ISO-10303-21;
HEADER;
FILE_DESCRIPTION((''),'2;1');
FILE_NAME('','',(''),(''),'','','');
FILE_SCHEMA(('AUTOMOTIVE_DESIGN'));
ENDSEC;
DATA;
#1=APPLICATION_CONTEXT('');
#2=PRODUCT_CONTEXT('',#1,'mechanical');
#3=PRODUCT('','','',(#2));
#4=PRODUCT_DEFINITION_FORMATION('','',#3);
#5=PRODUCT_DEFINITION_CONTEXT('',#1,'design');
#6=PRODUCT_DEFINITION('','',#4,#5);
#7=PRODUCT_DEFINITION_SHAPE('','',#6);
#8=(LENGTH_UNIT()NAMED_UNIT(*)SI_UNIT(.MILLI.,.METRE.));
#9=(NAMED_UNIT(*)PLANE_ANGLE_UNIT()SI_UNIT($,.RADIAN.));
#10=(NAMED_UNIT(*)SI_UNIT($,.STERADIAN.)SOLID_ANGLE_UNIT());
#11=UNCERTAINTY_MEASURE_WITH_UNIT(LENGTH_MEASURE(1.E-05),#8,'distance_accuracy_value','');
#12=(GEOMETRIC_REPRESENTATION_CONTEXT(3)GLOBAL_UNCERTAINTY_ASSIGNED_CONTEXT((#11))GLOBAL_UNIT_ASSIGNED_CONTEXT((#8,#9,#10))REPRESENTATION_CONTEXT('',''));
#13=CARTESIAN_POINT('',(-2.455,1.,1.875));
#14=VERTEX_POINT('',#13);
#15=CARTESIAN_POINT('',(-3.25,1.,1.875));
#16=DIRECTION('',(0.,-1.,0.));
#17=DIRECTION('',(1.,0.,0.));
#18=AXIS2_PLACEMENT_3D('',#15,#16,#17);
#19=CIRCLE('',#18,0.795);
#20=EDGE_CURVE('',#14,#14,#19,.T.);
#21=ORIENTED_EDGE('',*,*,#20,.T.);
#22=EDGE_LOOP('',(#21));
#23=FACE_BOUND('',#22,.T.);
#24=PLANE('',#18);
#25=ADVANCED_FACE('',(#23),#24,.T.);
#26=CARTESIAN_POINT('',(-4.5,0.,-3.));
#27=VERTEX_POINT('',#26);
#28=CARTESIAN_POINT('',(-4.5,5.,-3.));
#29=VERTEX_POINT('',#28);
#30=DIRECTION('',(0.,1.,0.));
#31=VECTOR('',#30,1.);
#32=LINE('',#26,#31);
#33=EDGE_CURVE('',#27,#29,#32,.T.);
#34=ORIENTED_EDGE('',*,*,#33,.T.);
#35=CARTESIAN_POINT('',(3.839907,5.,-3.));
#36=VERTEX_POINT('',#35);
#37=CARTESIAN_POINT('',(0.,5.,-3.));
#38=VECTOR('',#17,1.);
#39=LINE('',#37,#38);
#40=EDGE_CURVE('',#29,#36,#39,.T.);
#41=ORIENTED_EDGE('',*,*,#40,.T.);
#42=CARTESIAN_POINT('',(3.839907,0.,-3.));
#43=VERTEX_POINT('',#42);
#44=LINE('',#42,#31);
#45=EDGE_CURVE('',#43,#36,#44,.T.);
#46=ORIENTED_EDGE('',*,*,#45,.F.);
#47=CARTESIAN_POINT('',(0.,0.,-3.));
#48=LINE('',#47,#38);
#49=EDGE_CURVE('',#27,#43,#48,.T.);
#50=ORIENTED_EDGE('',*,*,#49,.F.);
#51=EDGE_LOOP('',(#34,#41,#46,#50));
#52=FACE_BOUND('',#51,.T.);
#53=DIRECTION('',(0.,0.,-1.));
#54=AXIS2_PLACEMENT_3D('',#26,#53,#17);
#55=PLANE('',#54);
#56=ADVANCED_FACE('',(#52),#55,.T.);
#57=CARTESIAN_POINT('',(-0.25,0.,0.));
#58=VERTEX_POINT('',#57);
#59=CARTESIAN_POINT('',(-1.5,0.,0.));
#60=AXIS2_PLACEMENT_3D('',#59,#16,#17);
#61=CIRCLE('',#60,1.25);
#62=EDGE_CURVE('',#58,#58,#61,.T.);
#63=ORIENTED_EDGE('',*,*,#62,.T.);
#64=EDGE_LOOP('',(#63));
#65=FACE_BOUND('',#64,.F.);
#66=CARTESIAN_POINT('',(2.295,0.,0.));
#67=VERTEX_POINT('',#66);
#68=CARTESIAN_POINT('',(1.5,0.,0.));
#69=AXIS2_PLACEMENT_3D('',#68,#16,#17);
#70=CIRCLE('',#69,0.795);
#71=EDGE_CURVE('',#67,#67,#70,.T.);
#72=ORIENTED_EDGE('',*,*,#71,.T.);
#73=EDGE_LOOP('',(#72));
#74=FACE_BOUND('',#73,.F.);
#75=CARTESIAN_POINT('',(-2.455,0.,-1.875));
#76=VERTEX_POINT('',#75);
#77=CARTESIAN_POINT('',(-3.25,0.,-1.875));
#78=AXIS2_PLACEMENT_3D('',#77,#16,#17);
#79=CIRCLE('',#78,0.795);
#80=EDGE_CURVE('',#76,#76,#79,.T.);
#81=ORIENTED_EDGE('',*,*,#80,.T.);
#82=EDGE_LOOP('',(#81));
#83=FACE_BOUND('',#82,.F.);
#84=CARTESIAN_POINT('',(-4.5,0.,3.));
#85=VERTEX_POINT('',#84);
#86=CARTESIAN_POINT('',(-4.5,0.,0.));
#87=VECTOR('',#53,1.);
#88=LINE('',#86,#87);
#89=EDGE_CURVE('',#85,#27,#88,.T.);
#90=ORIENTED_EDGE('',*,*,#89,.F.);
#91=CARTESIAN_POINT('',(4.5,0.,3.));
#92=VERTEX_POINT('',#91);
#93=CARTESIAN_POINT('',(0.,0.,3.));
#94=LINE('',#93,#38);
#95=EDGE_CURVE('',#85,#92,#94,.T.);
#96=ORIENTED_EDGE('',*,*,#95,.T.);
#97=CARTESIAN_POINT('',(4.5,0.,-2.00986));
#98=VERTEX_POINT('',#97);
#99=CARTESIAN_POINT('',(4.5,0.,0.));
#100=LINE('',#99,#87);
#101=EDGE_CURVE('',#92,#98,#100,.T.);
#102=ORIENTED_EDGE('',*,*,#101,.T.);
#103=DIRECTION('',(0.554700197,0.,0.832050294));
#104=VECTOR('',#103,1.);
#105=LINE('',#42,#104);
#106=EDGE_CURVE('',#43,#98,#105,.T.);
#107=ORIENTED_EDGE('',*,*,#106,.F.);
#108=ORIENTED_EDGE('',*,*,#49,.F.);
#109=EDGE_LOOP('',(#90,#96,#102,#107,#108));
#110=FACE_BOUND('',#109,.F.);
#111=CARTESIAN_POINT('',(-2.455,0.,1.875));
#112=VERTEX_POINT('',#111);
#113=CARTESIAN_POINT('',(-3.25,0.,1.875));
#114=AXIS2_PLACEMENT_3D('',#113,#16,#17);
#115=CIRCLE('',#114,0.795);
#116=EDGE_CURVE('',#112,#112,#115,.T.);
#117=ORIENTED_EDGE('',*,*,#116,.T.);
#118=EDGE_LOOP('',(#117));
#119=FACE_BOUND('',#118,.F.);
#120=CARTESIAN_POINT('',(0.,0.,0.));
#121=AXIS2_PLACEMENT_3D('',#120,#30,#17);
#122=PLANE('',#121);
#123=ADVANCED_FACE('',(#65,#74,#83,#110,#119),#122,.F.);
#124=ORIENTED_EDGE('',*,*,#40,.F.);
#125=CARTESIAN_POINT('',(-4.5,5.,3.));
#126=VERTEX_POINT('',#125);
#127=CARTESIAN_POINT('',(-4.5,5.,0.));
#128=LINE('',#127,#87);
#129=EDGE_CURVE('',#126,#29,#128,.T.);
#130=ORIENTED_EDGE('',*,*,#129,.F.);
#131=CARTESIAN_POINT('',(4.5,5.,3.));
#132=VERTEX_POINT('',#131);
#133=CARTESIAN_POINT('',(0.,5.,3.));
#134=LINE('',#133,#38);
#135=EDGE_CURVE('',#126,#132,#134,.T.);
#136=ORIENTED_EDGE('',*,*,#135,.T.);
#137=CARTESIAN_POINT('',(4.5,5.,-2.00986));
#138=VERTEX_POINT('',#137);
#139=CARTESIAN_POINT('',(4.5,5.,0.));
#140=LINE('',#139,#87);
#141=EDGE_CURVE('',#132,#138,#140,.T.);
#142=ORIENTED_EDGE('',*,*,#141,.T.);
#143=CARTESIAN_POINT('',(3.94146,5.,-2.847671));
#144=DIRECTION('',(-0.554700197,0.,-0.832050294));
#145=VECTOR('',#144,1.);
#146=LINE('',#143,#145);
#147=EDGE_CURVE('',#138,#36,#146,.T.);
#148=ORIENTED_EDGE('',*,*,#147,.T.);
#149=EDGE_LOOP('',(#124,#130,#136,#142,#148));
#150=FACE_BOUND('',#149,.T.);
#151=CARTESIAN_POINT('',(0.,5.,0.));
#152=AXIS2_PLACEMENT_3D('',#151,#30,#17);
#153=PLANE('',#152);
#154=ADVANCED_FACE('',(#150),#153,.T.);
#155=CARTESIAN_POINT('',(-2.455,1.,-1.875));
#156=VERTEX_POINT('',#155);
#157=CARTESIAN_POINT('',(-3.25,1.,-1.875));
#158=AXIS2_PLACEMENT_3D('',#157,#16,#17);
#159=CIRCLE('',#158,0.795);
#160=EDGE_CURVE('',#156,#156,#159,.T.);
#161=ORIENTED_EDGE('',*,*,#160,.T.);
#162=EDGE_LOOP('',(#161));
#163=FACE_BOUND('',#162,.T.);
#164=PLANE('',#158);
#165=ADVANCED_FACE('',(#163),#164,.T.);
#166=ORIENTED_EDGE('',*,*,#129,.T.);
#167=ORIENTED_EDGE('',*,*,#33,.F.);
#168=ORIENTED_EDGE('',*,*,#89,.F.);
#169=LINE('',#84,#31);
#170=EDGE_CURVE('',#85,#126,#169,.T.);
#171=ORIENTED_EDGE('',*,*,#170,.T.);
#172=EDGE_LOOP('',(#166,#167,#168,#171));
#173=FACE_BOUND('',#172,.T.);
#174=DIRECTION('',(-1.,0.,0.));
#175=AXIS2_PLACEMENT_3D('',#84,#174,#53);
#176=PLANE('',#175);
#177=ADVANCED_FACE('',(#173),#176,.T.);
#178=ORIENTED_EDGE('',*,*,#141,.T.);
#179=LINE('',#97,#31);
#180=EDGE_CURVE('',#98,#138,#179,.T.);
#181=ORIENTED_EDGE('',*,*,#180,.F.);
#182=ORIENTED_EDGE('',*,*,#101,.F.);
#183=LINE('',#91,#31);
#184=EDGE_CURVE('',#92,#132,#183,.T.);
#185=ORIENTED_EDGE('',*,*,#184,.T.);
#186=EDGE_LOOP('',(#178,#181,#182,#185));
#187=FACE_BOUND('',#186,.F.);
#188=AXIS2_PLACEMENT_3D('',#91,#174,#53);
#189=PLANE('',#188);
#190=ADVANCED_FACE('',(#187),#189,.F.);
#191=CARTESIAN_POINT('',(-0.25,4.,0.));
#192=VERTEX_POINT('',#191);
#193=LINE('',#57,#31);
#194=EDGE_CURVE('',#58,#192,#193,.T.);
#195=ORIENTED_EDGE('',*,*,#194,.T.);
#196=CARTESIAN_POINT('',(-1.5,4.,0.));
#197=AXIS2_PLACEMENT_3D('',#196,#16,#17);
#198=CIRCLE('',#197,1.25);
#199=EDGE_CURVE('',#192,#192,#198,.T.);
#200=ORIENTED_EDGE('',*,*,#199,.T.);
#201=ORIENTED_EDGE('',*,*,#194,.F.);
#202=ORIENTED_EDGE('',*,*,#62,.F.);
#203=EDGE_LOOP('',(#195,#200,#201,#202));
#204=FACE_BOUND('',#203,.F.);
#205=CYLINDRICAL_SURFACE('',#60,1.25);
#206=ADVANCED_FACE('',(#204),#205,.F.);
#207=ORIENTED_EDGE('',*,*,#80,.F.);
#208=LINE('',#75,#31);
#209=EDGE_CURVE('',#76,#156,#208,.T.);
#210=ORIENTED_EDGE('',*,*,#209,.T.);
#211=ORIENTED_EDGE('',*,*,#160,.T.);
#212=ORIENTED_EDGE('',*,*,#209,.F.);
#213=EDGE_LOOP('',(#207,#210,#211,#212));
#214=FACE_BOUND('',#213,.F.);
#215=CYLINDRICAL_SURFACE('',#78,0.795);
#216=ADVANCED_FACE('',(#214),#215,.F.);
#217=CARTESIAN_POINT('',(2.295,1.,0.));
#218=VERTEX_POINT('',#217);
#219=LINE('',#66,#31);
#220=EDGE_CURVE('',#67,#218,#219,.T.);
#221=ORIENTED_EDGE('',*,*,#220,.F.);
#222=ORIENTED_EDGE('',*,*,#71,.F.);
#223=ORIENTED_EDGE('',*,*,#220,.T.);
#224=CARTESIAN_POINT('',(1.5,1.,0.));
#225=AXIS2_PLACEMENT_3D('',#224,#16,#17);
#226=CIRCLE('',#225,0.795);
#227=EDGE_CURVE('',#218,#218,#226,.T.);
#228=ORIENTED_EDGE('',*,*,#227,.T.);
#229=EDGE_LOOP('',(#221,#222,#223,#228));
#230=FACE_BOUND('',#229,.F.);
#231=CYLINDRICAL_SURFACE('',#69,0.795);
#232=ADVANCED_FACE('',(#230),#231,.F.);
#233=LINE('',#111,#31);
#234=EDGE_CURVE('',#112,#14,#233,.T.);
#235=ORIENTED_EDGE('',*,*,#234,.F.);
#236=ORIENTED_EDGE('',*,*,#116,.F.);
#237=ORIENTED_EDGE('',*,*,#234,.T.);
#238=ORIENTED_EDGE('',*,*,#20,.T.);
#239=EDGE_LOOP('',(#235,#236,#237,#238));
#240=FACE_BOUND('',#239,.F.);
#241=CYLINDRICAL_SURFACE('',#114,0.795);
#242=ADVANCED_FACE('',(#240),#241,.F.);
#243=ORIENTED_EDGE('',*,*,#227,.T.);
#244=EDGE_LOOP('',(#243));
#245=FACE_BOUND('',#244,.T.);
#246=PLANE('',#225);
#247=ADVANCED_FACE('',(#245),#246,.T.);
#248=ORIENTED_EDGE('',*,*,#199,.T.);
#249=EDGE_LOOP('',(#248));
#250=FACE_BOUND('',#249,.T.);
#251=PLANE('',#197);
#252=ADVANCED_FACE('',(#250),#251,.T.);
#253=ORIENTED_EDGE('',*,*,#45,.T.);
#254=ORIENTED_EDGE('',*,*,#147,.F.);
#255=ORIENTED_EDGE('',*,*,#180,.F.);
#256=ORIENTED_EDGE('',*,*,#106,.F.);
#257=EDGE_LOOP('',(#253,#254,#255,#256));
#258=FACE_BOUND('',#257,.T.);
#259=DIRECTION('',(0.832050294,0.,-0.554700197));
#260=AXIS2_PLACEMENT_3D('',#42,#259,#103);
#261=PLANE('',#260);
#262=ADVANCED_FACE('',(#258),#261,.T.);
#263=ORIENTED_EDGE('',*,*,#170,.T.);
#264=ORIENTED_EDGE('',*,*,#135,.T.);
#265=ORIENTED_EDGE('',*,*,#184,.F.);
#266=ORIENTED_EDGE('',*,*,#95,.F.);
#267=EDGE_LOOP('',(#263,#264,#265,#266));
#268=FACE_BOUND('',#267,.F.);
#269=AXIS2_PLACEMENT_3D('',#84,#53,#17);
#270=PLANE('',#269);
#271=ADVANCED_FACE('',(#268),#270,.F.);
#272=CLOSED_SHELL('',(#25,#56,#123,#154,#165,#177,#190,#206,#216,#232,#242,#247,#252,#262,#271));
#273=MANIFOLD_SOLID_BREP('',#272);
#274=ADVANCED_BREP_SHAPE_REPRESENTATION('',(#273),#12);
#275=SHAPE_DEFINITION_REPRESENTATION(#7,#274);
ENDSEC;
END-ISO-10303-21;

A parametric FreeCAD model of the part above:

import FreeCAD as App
import Part
import Sketcher
Q = App.Units.Quantity


def add_polygon(sketch, points):
    """Adds a closed chain of lines whose ends are joined by coincident constraints."""
    first, n = sketch.GeometryCount, len(points)
    for a, b in zip(points, points[1:] + points[:1]):
        sketch.addGeometry(Part.LineSegment(App.Vector(*a, 0), App.Vector(*b, 0)), False)
    for i in range(n):
        sketch.addConstraint(Sketcher.Constraint("Coincident", first + i, 2, first + (i + 1) % n, 1))

doc = App.newDocument("Part")
body = doc.addObject("PartDesign::Body", "Body")

# Sketch on XZ plane
sketch1 = doc.addObject("Sketcher::SketchObject", "Sketch")
body.addObject(sketch1)
sketch1.AttachmentSupport = (doc.XZ_Plane, [""])
sketch1.MapMode = "FlatFace"
add_polygon(sketch1, [(-4, -3), (-4, 3), (4, 3), (4, -3)])  # lines 0-3
sketch1.addConstraint([
    Sketcher.Constraint("Vertical", 0),
    Sketcher.Constraint("Horizontal", 1),
    Sketcher.Constraint("Vertical", 2),
    Sketcher.Constraint("Horizontal", 3),
    Sketcher.Constraint("Symmetric", 0, 2, 2, 2, -1, 1),
    Sketcher.Constraint("DistanceX", 1, 1, 1, 2, Q("9 mm")),
    Sketcher.Constraint("DistanceY", 0, 1, 0, 2, Q("6 mm")),
])
pad1 = doc.addObject("PartDesign::Pad", "Pad")
body.addObject(pad1)
pad1.Profile = sketch1
pad1.Length = 5
pad1.Reversed = True

# Sketch on XZ plane
sketch2 = doc.addObject("Sketcher::SketchObject", "Sketch001")
body.addObject(sketch2)
sketch2.AttachmentSupport = (doc.XZ_Plane, [""])
sketch2.MapMode = "FlatFace"
sketch2.addGeometry(Part.Circle(App.Vector(-1.5, 0, 0), App.Vector(0, 0, 1), 1.2), False)
sketch2.addConstraint([
    Sketcher.Constraint("PointOnObject", 0, 3, -1),
    Sketcher.Constraint("Diameter", 0, Q("2.5 mm")),
    Sketcher.Constraint("DistanceX", 0, 3, -1, 1, Q("1.5 mm")),
])
pocket1 = doc.addObject("PartDesign::Pocket", "Pocket")
body.addObject(pocket1)
pocket1.Profile = sketch2
pocket1.Length = 4

# Sketch on XZ plane
sketch3 = doc.addObject("Sketcher::SketchObject", "Sketch002")
body.addObject(sketch3)
sketch3.AttachmentSupport = (doc.XZ_Plane, [""])
sketch3.MapMode = "FlatFace"
sketch3.addGeometry([
    Part.Circle(App.Vector(-3.2, -1.9, 0), App.Vector(0, 0, 1), 0.8),
    Part.Circle(App.Vector(-3.2, 1.9, 0), App.Vector(0, 0, 1), 0.8),
    Part.Circle(App.Vector(1.5, 0, 0), App.Vector(0, 0, 1), 0.8),
], False)
sketch3.addConstraint([
    Sketcher.Constraint("Equal", 0, 1),
    Sketcher.Constraint("Equal", 1, 2),
    Sketcher.Constraint("Symmetric", 0, 3, 1, 3, -1),
    Sketcher.Constraint("PointOnObject", 2, 3, -1),
    Sketcher.Constraint("Diameter", 0, Q("1.59 mm")),
    Sketcher.Constraint("DistanceX", -1, 1, 2, 3, Q("1.5 mm")),
    Sketcher.Constraint("DistanceX", 0, 3, -1, 1, Q("3.25 mm")),
    Sketcher.Constraint("DistanceY", 0, 3, 1, 3, Q("3.75 mm")),
])
pocket2 = doc.addObject("PartDesign::Pocket", "Pocket001")
body.addObject(pocket2)
pocket2.Profile = sketch3
pocket2.Length = 1

# Sketch on XZ plane
sketch4 = doc.addObject("Sketcher::SketchObject", "Sketch003")
body.addObject(sketch4)
sketch4.AttachmentSupport = (doc.XZ_Plane, [""])
sketch4.MapMode = "FlatFace"
add_polygon(sketch4, [(4.5, -2), (3.8, -3), (4.5, -3)])  # lines 0-2
sketch4.addConstraint([
    Sketcher.Constraint("Horizontal", 1),
    Sketcher.Constraint("Vertical", 2),
    Sketcher.Constraint("DistanceY", 0, 2, -1, 1, Q("3 mm")),
    Sketcher.Constraint("DistanceX", -1, 1, 1, 2, Q("4.5 mm")),
    Sketcher.Constraint("Distance", 0, Q("1.19 mm")),
    Sketcher.Constraint("DistanceY", 2, 1, 2, 2, Q("0.99014 mm")),
])
pocket3 = doc.addObject("PartDesign::Pocket", "Pocket002")
body.addObject(pocket3)
pocket3.Profile = sketch4
pocket3.Type = "ThroughAll"

doc.recompute()
